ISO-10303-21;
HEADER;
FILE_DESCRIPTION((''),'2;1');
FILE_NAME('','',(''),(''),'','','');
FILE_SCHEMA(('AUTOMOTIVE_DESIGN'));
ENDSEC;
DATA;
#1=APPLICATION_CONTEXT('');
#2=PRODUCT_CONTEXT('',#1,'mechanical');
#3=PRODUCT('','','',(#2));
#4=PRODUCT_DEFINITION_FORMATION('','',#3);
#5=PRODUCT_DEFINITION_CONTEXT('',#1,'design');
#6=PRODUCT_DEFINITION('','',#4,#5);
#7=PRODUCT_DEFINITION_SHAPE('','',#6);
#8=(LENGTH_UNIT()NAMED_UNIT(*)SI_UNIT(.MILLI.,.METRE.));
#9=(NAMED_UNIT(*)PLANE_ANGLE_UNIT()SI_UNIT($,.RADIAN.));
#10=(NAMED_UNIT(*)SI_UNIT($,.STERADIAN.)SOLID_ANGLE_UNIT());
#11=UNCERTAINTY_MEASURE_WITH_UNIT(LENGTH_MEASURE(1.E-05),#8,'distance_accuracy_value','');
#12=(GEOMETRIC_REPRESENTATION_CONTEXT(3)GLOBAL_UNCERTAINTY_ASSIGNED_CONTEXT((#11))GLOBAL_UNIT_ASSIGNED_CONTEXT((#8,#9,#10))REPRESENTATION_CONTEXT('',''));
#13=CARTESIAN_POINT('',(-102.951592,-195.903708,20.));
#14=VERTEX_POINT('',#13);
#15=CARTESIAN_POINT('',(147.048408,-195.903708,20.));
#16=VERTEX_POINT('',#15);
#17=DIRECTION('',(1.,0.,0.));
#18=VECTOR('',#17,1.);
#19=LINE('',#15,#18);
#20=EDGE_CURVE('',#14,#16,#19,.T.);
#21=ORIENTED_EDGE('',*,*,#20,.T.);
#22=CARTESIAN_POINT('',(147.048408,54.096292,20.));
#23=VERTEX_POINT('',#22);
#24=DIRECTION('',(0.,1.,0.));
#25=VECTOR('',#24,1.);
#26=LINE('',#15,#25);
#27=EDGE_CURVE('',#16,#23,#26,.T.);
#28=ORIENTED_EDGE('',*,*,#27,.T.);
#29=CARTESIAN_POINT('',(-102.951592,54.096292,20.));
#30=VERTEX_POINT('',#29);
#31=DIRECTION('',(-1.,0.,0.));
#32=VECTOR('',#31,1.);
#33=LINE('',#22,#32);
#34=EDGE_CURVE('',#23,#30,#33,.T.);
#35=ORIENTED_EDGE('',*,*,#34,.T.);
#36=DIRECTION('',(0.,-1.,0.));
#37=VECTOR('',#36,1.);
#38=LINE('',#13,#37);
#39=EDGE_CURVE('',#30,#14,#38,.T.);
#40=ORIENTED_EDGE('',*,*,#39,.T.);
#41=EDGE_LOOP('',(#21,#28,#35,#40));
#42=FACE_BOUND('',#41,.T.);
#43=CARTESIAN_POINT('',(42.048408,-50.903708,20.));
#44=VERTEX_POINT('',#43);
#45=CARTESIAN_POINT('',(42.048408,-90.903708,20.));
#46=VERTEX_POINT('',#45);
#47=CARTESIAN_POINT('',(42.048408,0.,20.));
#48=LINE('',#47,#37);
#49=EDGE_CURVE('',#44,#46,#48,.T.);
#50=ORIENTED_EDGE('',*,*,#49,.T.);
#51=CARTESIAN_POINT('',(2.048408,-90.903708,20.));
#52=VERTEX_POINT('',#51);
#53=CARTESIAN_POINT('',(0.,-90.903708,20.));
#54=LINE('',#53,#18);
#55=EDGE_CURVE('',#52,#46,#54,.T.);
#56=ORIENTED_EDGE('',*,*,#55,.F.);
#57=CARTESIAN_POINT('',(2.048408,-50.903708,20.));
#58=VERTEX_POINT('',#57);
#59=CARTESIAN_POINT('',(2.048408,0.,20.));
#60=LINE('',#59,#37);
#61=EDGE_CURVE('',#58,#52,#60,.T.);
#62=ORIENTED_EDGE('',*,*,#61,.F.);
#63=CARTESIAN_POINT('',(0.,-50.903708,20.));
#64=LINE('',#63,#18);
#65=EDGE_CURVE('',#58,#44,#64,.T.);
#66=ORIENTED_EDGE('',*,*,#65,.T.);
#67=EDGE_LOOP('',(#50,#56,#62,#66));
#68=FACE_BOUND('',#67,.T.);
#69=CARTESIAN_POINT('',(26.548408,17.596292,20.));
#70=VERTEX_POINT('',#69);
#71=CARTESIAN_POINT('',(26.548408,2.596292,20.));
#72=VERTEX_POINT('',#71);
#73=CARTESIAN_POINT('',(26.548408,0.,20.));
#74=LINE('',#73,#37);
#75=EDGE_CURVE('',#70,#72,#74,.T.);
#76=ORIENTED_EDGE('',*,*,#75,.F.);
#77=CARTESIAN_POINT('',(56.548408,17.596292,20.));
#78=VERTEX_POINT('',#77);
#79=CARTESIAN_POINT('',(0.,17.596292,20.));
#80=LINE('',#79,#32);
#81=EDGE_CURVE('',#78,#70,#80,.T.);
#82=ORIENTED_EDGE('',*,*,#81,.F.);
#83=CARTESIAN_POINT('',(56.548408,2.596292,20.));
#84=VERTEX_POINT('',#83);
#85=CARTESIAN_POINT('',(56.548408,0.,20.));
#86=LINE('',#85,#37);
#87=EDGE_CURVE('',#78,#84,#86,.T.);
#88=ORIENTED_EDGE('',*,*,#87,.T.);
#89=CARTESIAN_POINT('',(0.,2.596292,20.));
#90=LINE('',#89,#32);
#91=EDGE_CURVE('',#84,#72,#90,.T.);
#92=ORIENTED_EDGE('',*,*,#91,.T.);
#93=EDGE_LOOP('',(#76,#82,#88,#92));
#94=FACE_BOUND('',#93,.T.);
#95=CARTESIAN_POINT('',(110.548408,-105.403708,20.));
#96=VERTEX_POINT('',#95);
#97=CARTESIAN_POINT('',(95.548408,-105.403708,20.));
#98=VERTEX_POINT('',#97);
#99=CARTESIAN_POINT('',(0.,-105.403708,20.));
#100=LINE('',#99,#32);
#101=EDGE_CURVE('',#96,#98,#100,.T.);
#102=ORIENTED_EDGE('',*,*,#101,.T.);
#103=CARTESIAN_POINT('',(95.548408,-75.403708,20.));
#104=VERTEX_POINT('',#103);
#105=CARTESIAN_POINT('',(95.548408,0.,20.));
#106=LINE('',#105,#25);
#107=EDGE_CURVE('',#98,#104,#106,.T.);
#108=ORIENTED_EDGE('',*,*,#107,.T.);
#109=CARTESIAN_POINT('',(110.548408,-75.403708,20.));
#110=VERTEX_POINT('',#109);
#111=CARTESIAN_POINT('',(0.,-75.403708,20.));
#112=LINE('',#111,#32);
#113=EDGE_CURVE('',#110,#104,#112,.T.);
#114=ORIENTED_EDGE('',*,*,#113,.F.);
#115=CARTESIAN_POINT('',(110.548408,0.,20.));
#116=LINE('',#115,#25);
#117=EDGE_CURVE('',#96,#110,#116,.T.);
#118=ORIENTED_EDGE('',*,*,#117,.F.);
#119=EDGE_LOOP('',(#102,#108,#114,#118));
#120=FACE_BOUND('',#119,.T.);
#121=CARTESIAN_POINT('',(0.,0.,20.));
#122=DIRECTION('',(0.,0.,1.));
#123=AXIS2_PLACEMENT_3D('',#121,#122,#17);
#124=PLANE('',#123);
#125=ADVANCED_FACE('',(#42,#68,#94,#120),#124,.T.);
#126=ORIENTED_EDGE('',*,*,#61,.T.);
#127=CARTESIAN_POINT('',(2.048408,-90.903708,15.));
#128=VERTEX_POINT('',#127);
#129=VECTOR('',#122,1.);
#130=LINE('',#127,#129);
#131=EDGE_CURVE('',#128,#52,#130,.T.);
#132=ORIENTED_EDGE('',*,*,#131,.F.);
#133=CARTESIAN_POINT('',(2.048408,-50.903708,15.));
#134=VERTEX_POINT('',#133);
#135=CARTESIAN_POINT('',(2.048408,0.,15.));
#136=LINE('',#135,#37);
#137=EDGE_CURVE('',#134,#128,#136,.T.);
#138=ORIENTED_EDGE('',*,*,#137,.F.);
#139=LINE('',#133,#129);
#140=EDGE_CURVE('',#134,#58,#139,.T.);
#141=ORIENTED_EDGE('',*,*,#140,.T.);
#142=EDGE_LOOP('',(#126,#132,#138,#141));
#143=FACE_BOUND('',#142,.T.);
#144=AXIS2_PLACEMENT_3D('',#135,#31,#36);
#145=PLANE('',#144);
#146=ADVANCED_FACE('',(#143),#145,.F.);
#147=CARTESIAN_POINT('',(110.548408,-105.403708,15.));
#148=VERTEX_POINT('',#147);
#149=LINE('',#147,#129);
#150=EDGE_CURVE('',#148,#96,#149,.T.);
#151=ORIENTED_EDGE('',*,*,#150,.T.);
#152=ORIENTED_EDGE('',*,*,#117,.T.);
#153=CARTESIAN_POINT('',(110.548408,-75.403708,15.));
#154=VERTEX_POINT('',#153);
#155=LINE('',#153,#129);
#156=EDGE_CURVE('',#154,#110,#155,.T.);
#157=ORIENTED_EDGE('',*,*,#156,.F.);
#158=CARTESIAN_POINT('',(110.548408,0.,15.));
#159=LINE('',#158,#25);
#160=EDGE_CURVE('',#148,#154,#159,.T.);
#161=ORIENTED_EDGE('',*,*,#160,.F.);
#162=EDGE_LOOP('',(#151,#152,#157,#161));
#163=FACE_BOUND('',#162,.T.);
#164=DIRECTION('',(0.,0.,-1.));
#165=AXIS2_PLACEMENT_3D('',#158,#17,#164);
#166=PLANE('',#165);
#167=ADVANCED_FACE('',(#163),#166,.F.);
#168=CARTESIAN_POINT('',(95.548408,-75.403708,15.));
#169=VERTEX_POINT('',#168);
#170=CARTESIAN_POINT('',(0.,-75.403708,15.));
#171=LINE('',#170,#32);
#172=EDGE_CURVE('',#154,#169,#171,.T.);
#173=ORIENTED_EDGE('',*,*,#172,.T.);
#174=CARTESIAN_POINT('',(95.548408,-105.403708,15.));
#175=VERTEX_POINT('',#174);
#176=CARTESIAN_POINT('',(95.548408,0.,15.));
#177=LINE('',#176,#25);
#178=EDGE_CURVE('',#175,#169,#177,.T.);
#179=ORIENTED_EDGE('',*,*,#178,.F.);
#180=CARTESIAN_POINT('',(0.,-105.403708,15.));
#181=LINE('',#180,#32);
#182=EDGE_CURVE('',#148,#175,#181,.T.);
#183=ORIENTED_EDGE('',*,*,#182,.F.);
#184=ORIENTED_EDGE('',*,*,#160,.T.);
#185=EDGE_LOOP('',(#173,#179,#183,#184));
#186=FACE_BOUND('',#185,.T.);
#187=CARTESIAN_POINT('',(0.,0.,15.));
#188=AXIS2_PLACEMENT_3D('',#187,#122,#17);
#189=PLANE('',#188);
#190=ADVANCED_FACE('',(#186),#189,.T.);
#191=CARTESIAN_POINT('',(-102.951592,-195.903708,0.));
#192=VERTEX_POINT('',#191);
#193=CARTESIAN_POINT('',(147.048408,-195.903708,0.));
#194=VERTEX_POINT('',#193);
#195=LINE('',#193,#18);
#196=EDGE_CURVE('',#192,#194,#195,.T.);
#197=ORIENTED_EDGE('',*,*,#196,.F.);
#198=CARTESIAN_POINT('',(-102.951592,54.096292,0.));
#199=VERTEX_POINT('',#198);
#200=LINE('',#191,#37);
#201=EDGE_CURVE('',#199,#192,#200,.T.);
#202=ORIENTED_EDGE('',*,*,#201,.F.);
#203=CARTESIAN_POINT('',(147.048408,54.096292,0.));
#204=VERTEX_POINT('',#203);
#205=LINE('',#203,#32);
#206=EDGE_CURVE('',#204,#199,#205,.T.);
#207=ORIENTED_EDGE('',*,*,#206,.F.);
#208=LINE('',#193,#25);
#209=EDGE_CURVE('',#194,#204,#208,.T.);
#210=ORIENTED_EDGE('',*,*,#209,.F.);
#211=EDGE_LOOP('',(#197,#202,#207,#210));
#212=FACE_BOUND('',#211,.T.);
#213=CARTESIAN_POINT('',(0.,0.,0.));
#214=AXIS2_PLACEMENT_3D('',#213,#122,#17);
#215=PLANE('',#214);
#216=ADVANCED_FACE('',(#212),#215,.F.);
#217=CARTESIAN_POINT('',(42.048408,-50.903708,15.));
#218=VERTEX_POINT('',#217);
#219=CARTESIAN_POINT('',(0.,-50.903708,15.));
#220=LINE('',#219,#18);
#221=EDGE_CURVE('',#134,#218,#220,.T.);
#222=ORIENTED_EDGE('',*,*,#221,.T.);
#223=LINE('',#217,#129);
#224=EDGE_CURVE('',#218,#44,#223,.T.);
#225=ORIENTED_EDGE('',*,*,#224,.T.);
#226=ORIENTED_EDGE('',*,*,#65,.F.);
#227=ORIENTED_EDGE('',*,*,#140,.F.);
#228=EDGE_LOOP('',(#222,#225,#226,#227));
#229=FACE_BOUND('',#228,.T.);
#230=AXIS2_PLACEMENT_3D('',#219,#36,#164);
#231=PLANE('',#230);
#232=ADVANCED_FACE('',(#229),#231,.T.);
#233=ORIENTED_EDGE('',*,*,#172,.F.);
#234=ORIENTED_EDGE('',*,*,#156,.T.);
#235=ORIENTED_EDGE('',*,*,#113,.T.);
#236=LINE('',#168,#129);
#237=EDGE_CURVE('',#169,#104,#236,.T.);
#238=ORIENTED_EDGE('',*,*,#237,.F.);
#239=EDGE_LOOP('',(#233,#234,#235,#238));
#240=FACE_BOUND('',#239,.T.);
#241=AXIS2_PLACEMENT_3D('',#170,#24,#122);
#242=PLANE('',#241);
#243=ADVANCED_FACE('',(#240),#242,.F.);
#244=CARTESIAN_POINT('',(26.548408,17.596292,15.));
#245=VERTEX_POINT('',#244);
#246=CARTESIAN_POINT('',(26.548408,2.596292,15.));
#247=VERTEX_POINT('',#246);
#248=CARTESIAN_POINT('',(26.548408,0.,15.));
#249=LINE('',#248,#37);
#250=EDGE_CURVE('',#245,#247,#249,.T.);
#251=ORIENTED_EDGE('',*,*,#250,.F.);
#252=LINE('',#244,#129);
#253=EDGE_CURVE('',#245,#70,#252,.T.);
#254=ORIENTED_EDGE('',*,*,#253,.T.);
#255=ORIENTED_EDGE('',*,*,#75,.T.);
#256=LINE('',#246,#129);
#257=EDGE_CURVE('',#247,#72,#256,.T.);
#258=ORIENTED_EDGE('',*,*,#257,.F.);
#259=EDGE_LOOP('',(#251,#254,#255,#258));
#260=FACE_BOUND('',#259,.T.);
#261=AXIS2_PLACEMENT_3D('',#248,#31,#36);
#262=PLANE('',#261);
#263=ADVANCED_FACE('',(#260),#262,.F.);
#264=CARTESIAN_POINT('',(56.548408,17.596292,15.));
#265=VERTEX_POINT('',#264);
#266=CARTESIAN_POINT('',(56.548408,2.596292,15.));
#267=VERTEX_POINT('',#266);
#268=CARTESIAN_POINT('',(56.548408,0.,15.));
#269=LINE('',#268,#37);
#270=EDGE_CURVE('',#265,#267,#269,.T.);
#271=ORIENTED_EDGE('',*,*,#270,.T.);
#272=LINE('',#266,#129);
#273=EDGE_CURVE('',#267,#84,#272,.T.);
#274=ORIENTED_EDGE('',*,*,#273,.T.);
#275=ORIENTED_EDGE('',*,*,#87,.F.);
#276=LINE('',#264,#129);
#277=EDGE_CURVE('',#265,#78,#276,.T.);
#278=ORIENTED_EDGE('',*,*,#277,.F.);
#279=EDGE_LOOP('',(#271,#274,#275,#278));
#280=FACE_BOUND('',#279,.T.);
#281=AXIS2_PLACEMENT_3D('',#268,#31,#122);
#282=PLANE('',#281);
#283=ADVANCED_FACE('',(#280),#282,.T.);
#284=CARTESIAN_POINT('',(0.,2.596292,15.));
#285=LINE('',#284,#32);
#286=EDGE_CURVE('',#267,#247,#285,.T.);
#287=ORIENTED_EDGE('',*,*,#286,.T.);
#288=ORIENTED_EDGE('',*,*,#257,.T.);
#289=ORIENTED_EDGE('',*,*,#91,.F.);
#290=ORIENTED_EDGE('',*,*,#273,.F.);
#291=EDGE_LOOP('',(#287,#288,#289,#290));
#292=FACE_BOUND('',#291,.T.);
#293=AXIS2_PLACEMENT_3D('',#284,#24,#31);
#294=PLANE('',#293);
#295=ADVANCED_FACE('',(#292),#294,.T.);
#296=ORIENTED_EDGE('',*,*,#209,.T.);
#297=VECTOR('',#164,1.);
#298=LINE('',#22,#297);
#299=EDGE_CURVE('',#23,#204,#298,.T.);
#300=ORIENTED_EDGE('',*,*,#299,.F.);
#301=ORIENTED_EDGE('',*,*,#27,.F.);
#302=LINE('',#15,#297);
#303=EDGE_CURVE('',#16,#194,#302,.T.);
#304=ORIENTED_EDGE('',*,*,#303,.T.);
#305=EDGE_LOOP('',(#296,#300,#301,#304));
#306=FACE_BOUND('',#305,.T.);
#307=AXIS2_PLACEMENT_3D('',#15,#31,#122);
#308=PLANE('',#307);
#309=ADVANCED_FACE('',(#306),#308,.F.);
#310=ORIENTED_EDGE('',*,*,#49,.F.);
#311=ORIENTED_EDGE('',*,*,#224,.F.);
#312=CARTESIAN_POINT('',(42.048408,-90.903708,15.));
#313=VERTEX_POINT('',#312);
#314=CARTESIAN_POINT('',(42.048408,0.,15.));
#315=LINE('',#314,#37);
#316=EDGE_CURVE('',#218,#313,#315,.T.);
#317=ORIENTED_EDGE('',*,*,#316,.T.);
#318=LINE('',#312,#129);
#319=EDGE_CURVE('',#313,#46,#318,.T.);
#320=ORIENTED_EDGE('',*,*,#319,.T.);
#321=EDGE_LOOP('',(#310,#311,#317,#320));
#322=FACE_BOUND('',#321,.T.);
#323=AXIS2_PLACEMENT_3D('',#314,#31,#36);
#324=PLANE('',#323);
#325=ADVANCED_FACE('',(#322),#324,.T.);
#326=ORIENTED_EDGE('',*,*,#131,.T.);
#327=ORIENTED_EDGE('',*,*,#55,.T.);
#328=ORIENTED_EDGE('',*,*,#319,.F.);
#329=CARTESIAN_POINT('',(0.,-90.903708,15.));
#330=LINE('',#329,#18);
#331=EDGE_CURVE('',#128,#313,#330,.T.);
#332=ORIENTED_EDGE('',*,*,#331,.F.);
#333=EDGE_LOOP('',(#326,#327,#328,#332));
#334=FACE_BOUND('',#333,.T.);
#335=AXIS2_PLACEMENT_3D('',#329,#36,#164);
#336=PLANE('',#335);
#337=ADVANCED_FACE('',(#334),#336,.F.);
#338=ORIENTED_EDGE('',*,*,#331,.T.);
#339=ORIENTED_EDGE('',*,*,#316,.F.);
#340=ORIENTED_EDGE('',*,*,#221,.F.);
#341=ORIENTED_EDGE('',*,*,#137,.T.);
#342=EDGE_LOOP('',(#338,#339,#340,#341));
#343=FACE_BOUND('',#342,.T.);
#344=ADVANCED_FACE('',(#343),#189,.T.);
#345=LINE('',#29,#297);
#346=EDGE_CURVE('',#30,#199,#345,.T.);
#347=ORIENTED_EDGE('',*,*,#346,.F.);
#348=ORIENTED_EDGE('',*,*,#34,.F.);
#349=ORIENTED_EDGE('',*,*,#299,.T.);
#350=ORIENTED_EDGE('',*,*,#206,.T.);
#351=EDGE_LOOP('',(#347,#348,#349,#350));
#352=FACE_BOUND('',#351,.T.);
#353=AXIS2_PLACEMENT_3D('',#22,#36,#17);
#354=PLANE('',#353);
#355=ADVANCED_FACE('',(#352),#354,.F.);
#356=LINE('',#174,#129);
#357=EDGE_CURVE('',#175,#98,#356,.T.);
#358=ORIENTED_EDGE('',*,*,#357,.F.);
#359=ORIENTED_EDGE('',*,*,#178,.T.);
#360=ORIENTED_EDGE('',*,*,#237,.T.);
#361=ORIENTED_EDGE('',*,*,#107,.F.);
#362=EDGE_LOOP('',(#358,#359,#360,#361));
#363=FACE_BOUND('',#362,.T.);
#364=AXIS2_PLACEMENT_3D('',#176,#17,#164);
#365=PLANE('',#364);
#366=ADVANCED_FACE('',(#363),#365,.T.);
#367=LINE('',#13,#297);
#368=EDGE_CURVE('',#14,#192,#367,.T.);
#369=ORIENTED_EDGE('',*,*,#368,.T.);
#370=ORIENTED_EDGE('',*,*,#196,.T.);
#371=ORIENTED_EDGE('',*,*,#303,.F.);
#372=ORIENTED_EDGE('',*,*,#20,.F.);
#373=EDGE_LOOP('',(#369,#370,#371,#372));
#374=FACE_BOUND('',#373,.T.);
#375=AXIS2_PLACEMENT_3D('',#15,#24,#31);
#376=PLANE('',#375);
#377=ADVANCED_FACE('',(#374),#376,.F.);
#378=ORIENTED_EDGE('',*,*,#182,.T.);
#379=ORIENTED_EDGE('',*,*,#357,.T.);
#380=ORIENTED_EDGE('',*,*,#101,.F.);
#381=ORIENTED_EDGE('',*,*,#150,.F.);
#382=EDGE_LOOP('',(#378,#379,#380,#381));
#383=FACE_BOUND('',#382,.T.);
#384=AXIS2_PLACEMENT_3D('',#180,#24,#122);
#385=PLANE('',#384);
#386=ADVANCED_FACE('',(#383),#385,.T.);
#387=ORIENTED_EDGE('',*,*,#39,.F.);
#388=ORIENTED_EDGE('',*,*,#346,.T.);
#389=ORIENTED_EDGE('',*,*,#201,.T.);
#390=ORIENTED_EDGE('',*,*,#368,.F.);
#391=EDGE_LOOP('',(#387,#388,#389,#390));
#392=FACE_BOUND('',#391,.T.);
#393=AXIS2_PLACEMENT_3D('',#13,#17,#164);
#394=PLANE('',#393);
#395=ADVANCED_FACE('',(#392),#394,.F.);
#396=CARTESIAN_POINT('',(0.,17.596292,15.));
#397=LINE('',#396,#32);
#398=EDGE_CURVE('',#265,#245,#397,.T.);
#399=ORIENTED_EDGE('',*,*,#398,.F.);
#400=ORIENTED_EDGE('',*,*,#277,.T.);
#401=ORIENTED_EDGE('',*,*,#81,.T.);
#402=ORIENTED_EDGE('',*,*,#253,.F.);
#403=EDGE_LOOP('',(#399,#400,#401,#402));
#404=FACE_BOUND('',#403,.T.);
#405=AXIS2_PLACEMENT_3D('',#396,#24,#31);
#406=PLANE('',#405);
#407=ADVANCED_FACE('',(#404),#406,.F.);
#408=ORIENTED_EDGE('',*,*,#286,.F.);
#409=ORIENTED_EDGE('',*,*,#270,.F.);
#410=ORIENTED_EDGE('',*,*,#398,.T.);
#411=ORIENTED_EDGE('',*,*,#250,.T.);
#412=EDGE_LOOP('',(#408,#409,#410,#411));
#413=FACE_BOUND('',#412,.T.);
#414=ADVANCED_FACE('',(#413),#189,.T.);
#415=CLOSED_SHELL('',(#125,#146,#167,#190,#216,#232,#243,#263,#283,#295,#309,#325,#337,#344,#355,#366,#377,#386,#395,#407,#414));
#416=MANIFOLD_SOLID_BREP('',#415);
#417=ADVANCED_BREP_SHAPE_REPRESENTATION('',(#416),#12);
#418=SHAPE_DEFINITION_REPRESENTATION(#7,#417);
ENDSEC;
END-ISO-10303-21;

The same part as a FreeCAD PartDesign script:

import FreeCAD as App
import Part
import Sketcher
from FreeCAD import Vector
Q = App.Units.Quantity


def add_polygon(sketch, points):
    """Adds a closed chain of lines whose ends are joined by coincident constraints."""
    first, n = sketch.GeometryCount, len(points)
    for a, b in zip(points, points[1:] + points[:1]):
        sketch.addGeometry(Part.LineSegment(App.Vector(*a, 0), App.Vector(*b, 0)), False)
    for i in range(n):
        sketch.addConstraint(Sketcher.Constraint("Coincident", first + i, 2, first + (i + 1) % n, 1))

doc = App.newDocument("Part")
body = doc.addObject("PartDesign::Body", "Body")

# Sketch on XY plane
sketch1 = body.newObject("Sketcher::SketchObject", "Sketch")
sketch1.AttachmentSupport = (doc.getObject("XY_Plane"), [""])
sketch1.MapMode = "FlatFace"
add_polygon(sketch1, [(-102.951592, 54.096292), (-102.951592, -195.903708), (147.048408, -195.903708), (147.048408, 54.096292)])  # lines 0-3
sketch1.addConstraint(Sketcher.Constraint("Vertical", 0))
sketch1.addConstraint(Sketcher.Constraint("Horizontal", 1))
sketch1.addConstraint(Sketcher.Constraint("Vertical", 2))
sketch1.addConstraint(Sketcher.Constraint("Horizontal", 3))
sketch1.addConstraint(Sketcher.Constraint("Equal", 3, 0))
sketch1.addConstraint(Sketcher.Constraint("DistanceX", 1, 1, 1, 2, Q("250 mm")))
sketch1.addConstraint(Sketcher.Constraint("DistanceX", 0, 2, -1, 1, Q("102.951592 mm")))
sketch1.addConstraint(Sketcher.Constraint("DistanceY", 0, 2, -1, 1, Q("195.903708 mm")))
pad1 = body.newObject("PartDesign::Pad", "Pad")
pad1.Profile = sketch1
pad1.Length = 20

# Sketch on XY plane
sketch2 = body.newObject("Sketcher::SketchObject", "Sketch001")
sketch2.AttachmentSupport = (doc.getObject("XY_Plane"), [""])
sketch2.MapMode = "FlatFace"
sketch2.AttachmentOffset = App.Placement(Vector(0, 0, 20), App.Rotation())
add_polygon(sketch2, [(95.548408, -105.403708), (110.548408, -105.403708), (110.548408, -75.403708), (95.548408, -75.403708)])  # lines 0-3
add_polygon(sketch2, [(2.048408, -50.903708), (2.048408, -90.903708), (42.048408, -90.903708), (42.048408, -50.903708)])  # lines 4-7
add_polygon(sketch2, [(26.548408, 17.596292), (26.548408, 2.596292), (56.548408, 2.596292), (56.548408, 17.596292)])  # lines 8-11
sketch2.addConstraint(Sketcher.Constraint("Horizontal", 0))
sketch2.addConstraint(Sketcher.Constraint("Vertical", 1))
sketch2.addConstraint(Sketcher.Constraint("Horizontal", 2))
sketch2.addConstraint(Sketcher.Constraint("Vertical", 3))
sketch2.addConstraint(Sketcher.Constraint("Vertical", 4))
sketch2.addConstraint(Sketcher.Constraint("Horizontal", 5))
sketch2.addConstraint(Sketcher.Constraint("Vertical", 6))
sketch2.addConstraint(Sketcher.Constraint("Horizontal", 7))
sketch2.addConstraint(Sketcher.Constraint("Vertical", 8))
sketch2.addConstraint(Sketcher.Constraint("Horizontal", 9))
sketch2.addConstraint(Sketcher.Constraint("Vertical", 10))
sketch2.addConstraint(Sketcher.Constraint("Horizontal", 11))
sketch2.addConstraint(Sketcher.Constraint("Equal", 11, 1))
sketch2.addConstraint(Sketcher.Constraint("Equal", 7, 4))
sketch2.addConstraint(Sketcher.Constraint("Equal", 2, 8))
sketch2.addConstraint(Sketcher.Constraint("DistanceX", 0, 1, 0, 2, Q("15 mm")))
sketch2.addConstraint(Sketcher.Constraint("DistanceX", 5, 1, 5, 2, Q("40 mm")))
sketch2.addConstraint(Sketcher.Constraint("DistanceX", 9, 1, 9, 2, Q("30 mm")))
sketch2.addConstraint(Sketcher.Constraint("DistanceX", 8, 2, 2, 2, Q("69 mm")))
sketch2.addConstraint(Sketcher.Constraint("DistanceY", 2, 2, 8, 2, Q("78 mm")))
sketch2.addConstraint(Sketcher.Constraint("DistanceX", 4, 2, 3, 2, Q("93.5 mm")))
sketch2.addConstraint(Sketcher.Constraint("DistanceY", 3, 2, 4, 2, Q("14.5 mm")))
sketch2.addConstraint(Sketcher.Constraint("DistanceX", -1, 1, 0, 2, Q("110.548408 mm")))
sketch2.addConstraint(Sketcher.Constraint("DistanceY", 0, 2, -1, 1, Q("105.403708 mm")))
pocket1 = body.newObject("PartDesign::Pocket", "Pocket")
pocket1.Profile = sketch2
pocket1.Length = 5

doc.recompute()
